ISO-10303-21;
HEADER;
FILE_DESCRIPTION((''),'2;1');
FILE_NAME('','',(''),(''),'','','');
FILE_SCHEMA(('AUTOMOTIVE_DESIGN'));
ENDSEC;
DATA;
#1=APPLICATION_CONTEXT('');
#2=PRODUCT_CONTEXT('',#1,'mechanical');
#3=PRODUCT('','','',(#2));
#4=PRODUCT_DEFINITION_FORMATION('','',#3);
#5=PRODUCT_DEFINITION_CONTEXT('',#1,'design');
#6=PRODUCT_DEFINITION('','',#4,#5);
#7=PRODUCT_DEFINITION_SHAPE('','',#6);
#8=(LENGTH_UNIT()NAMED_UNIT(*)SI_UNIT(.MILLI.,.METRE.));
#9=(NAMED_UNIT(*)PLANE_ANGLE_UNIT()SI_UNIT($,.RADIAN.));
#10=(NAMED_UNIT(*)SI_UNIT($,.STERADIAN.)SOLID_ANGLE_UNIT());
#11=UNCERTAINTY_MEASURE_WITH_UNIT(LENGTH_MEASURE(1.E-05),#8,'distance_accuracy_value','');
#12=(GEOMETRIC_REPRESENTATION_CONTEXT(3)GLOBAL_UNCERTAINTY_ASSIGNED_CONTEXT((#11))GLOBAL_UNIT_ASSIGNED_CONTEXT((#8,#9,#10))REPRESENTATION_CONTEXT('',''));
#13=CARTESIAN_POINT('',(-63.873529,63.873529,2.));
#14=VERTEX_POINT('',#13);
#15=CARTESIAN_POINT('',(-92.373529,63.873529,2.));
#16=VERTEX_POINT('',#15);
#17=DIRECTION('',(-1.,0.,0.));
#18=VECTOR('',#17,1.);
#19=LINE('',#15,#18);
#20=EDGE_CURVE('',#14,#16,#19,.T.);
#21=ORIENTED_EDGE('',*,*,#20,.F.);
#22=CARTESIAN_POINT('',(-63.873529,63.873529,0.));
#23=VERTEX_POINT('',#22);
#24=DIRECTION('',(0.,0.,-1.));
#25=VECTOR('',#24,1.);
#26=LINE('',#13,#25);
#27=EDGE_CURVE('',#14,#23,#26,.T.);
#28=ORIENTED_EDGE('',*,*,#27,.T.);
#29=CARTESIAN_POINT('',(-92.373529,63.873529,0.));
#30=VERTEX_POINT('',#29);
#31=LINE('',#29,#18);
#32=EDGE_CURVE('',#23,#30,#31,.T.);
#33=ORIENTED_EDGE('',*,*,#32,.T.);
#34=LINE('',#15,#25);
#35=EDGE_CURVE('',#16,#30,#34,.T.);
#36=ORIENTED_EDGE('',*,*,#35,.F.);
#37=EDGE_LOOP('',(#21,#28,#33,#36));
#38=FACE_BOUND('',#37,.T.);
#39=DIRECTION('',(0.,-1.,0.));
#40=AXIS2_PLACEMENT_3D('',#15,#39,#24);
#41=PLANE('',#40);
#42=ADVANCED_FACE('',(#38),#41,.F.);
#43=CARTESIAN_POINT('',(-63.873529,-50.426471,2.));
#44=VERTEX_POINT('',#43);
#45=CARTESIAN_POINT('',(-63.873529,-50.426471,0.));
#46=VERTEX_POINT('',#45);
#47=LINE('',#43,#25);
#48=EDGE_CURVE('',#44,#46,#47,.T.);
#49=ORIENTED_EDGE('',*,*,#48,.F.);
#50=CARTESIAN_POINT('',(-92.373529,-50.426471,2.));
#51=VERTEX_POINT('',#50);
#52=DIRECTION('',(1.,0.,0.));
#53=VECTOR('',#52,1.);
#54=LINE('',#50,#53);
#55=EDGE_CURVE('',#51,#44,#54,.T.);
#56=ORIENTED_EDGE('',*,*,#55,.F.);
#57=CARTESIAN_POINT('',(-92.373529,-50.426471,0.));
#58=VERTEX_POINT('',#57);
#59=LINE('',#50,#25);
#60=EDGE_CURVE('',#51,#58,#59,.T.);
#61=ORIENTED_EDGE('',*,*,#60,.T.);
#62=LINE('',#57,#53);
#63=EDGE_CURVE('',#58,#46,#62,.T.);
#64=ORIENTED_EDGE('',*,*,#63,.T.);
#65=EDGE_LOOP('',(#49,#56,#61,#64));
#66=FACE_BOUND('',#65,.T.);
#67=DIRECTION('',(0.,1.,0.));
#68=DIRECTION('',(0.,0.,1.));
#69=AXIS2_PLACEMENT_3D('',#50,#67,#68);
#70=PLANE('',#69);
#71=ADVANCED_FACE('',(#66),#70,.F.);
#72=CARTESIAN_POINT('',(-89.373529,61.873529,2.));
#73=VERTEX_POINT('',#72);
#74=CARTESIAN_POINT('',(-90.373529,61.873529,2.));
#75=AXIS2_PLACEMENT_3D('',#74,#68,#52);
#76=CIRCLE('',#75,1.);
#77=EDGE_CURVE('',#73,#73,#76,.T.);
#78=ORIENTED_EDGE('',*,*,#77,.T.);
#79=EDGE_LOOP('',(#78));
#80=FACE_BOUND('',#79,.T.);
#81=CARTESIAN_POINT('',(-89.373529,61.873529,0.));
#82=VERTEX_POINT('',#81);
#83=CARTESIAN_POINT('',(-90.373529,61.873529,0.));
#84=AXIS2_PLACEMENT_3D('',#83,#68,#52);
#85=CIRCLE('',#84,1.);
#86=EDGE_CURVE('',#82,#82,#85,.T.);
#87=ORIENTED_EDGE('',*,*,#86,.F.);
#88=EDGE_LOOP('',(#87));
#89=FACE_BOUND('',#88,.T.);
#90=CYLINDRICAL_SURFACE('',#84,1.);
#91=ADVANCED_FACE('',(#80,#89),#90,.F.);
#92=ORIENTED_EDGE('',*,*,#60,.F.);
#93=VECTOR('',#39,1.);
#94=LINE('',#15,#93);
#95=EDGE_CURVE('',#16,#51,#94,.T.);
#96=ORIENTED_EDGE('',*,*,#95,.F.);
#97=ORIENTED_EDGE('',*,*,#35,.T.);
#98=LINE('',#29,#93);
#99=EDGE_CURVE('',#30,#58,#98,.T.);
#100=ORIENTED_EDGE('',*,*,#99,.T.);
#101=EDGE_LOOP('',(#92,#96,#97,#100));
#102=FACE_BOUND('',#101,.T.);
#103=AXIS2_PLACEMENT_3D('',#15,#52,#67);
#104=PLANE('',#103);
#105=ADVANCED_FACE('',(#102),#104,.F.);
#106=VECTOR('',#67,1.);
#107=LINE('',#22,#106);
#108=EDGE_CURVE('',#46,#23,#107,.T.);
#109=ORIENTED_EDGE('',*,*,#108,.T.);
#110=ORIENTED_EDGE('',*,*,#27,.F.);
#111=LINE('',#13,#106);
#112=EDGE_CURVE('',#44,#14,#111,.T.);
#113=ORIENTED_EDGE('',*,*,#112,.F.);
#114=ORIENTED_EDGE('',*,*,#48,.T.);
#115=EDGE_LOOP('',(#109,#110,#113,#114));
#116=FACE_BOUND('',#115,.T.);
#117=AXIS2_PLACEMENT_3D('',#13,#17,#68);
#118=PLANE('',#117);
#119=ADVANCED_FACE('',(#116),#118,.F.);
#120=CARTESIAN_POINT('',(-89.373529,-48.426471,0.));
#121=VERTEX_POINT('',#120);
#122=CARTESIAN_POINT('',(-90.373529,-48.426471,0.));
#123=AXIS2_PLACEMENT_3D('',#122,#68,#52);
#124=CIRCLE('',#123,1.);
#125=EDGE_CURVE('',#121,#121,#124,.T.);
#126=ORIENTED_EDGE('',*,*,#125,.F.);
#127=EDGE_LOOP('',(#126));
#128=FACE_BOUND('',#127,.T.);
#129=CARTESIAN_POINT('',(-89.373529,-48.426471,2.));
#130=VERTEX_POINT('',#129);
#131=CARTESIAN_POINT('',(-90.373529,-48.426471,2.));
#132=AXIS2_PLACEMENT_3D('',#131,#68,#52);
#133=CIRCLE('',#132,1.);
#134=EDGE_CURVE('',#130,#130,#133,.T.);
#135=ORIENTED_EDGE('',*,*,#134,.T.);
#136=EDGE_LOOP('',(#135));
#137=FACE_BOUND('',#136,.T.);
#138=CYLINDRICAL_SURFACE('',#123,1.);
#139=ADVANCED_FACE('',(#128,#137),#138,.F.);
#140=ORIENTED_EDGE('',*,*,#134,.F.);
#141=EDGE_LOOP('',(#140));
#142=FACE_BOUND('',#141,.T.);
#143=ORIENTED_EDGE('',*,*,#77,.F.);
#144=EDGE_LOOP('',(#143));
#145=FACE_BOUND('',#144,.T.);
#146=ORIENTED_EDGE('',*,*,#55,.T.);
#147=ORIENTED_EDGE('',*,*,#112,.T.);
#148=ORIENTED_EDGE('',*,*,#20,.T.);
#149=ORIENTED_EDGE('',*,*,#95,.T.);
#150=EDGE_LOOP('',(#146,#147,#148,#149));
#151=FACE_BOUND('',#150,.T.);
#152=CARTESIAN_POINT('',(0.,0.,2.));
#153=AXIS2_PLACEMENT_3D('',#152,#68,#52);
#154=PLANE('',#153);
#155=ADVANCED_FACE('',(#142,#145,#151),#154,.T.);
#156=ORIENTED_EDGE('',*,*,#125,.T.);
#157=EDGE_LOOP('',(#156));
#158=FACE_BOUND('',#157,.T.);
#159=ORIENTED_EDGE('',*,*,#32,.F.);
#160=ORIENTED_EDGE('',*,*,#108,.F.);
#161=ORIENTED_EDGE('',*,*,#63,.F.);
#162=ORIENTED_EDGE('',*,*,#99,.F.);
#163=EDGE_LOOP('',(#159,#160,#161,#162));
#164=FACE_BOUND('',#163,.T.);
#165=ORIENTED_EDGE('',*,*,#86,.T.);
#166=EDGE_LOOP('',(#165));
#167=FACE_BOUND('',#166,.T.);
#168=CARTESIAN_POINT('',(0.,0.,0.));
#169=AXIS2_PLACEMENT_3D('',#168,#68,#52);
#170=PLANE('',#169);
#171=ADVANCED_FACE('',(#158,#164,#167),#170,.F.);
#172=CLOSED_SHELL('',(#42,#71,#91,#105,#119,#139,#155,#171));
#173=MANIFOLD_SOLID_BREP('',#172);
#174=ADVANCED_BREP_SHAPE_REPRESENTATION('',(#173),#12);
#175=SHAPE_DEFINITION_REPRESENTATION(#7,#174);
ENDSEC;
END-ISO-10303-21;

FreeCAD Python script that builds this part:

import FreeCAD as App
import Part
import Sketcher

V = App.Vector


def add_polygon(sketch, points):
    """Adds a closed chain of lines whose ends are joined by coincident constraints."""
    first, n = sketch.GeometryCount, len(points)
    for a, b in zip(points, points[1:] + points[:1]):
        sketch.addGeometry(Part.LineSegment(App.Vector(*a, 0), App.Vector(*b, 0)), False)
    for i in range(n):
        sketch.addConstraint(Sketcher.Constraint("Coincident", first + i, 2, first + (i + 1) % n, 1))

doc = App.newDocument("Part")
body = doc.addObject("PartDesign::Body", "Body")

# Sketch on XY plane
sketch1 = doc.addObject("Sketcher::SketchObject", "Sketch")
body.addObject(sketch1)
sketch1.AttachmentSupport = (doc.XY_Plane, [""])
sketch1.MapMode = "FlatFace"
add_polygon(sketch1, [(-92, 64), (-92, -50), (-64, -50), (-64, 64)])  # lines 0-3
sketch1.addConstraint([
    Sketcher.Constraint("Vertical", 0),
    Sketcher.Constraint("Horizontal", 1),
    Sketcher.Constraint("Vertical", 2),
    Sketcher.Constraint("Horizontal", 3),
    Sketcher.Constraint("DistanceX", 1, 1, 1, 2, 28.5),
    Sketcher.Constraint("DistanceY", 0, 2, 0, 1, 114.3),
    Sketcher.Constraint("DistanceX", 0, 2, -1, 1, 92.373529),
    Sketcher.Constraint("DistanceY", 0, 2, -1, 1, 50.426471),
])
pad1 = doc.addObject("PartDesign::Pad", "Pad")
body.addObject(pad1)
pad1.Profile = sketch1
pad1.Length = 2

# Sketch on XY plane
sketch2 = doc.addObject("Sketcher::SketchObject", "Sketch001")
body.addObject(sketch2)
sketch2.AttachmentSupport = (doc.XY_Plane, [""])
sketch2.MapMode = "FlatFace"
sketch2.AttachmentOffset = App.Placement(V(0, 0, 2), App.Rotation())
sketch2.addGeometry([
    Part.Circle(V(-90.4, 61.9, 0), V(0, 0, 1), 1),
    Part.Circle(V(-90.4, -48.4, 0), V(0, 0, 1), 1),
], False)
sketch2.addConstraint([
    Sketcher.Constraint("Equal", 0, 1),
    Sketcher.Constraint("Vertical", 0, 3, 1, 3),
    Sketcher.Constraint("Diameter", 0, 2.0),
    Sketcher.Constraint("DistanceY", 1, 3, 0, 3, 110.3),
    Sketcher.Constraint("DistanceX", 0, 3, -1, 1, 90.373529),
    Sketcher.Constraint("DistanceY", -1, 1, 0, 3, 61.873529),
])
pocket1 = doc.addObject("PartDesign::Pocket", "Pocket")
body.addObject(pocket1)
pocket1.Profile = sketch2
pocket1.Type = "ThroughAll"

doc.recompute()
